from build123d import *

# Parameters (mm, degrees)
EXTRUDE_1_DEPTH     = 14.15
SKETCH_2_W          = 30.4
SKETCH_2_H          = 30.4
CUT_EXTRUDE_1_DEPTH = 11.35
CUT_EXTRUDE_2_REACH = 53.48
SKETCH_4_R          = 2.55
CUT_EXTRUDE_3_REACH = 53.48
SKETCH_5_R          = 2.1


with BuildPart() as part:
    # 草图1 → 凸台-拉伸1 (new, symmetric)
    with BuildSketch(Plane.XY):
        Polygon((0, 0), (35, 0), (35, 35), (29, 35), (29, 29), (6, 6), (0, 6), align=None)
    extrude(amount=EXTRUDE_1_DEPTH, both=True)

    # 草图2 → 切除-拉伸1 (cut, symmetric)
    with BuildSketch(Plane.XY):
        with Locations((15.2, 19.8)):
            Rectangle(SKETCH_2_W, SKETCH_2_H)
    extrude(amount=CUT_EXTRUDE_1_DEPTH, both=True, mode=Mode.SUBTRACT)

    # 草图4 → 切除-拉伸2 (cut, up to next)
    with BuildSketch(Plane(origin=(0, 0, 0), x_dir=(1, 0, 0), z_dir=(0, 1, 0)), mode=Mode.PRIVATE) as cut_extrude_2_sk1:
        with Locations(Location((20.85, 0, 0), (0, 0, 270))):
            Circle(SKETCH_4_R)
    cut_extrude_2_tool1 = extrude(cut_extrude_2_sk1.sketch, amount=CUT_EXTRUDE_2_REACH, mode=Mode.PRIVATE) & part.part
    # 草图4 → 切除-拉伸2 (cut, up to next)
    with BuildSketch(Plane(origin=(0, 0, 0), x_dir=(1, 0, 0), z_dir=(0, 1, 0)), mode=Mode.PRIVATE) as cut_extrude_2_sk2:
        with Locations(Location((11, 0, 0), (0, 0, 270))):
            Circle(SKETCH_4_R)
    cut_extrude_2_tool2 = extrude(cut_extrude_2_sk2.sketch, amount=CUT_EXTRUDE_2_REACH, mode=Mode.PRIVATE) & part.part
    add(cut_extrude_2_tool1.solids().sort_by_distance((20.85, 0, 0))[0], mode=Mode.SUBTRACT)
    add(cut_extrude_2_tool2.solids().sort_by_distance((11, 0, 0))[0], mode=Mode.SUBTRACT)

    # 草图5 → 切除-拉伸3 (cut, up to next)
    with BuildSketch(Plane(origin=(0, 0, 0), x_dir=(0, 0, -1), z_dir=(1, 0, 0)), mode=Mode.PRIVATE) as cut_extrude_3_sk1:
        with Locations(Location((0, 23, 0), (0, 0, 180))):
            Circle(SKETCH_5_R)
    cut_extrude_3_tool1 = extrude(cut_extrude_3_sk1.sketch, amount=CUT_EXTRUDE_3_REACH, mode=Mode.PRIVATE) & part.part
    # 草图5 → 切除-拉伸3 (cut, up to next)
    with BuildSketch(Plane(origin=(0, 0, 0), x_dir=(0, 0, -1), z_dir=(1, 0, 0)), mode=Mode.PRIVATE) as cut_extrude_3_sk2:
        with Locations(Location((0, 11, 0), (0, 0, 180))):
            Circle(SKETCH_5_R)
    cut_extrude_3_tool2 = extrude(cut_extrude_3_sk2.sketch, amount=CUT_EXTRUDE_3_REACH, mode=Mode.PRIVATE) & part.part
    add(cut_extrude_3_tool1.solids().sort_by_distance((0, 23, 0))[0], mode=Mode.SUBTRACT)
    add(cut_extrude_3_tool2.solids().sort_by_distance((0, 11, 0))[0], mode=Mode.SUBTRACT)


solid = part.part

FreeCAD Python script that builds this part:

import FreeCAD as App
import Part
import Sketcher
Q = App.Units.Quantity

doc = App.newDocument("Part")
params = doc.addObject("Spreadsheet::Sheet", "Params")
for row, (alias, value) in enumerate([
    ("sketch1_width", "35 mm"),
    ("sketch1_width2", "6 mm"),
    ("pad1_length", "28.3 mm"),
    ("sketch2_width", "30.4 mm"),
    ("pocket1_length", "22.7 mm"),
    ("sketch3_diameter", "5.1 mm"),
    ("sketch4_diameter", "5.1 mm"),
    ("sketch5_diameter", "4.2 mm"),
    ("pocket4_length", "35 mm"),
    ("sketch6_diameter", "4.2 mm"),
    ("pocket5_length", "35 mm"),
], start=1):
    params.set(f"A{row}", alias)
    params.set(f"B{row}", "=" + value)
    params.setAlias(f"B{row}", alias)

body = doc.addObject("PartDesign::Body", "Body")

# Sketch on XY plane
sketch1 = body.newObject("Sketcher::SketchObject", "Sketch")
sketch1.AttachmentSupport = (doc.getObject("XY_Plane"), [""])
sketch1.MapMode = "FlatFace"
sketch1.addGeometry(Part.LineSegment(App.Vector(0, 0, 0), App.Vector(35, 0, 0)), False)
sketch1.addGeometry(Part.LineSegment(App.Vector(35, 0, 0), App.Vector(35, 35, 0)), False)
sketch1.addGeometry(Part.LineSegment(App.Vector(35, 35, 0), App.Vector(29, 35, 0)), False)
sketch1.addGeometry(Part.LineSegment(App.Vector(29, 35, 0), App.Vector(29, 29, 0)), False)
sketch1.addGeometry(Part.LineSegment(App.Vector(29, 29, 0), App.Vector(6, 6, 0)), False)
sketch1.addGeometry(Part.LineSegment(App.Vector(6, 6, 0), App.Vector(0, 6, 0)), False)
sketch1.addGeometry(Part.LineSegment(App.Vector(0, 6, 0), App.Vector(0, 0, 0)), False)
sketch1.addConstraint(Sketcher.Constraint("Coincident", 0, 2, 1, 1))
sketch1.addConstraint(Sketcher.Constraint("Coincident", 1, 2, 2, 1))
sketch1.addConstraint(Sketcher.Constraint("Coincident", 2, 2, 3, 1))
sketch1.addConstraint(Sketcher.Constraint("Coincident", 3, 2, 4, 1))
sketch1.addConstraint(Sketcher.Constraint("Coincident", 4, 2, 5, 1))
sketch1.addConstraint(Sketcher.Constraint("Coincident", 5, 2, 6, 1))
sketch1.addConstraint(Sketcher.Constraint("Coincident", 6, 2, 0, 1))
sketch1.addConstraint(Sketcher.Constraint("Horizontal", 0))
sketch1.addConstraint(Sketcher.Constraint("Vertical", 1))
sketch1.addConstraint(Sketcher.Constraint("Horizontal", 2))
sketch1.addConstraint(Sketcher.Constraint("Vertical", 3))
sketch1.addConstraint(Sketcher.Constraint("Horizontal", 5))
sketch1.addConstraint(Sketcher.Constraint("Vertical", 6))
sketch1.addConstraint(Sketcher.Constraint("Coincident", 6, 2, -1, 1))
sketch1.addConstraint(Sketcher.Constraint("Equal", 2, 5))
sketch1.addConstraint(Sketcher.Constraint("Equal", 0, 1))
sketch1.addConstraint(Sketcher.Constraint("Equal", 5, 3))
sketch1.addConstraint(Sketcher.Constraint("Equal", 3, 6))
sketch1.addConstraint(Sketcher.Constraint("DistanceX", 0, 1, 0, 2, Q("35 mm")))
sketch1.addConstraint(Sketcher.Constraint("DistanceX", 2, 2, 2, 1, Q("6 mm")))
sketch1.setExpression("Constraints[18]", "Params.sketch1_width")
sketch1.setExpression("Constraints[19]", "Params.sketch1_width2")
pad1 = body.newObject("PartDesign::Pad", "Pad")
pad1.Profile = sketch1
pad1.setExpression("Length", "Params.pad1_length")
pad1.Midplane = True

# Sketch on XY plane
sketch2 = body.newObject("Sketcher::SketchObject", "Sketch001")
sketch2.AttachmentSupport = (doc.getObject("XY_Plane"), [""])
sketch2.MapMode = "FlatFace"
sketch2.addGeometry(Part.LineSegment(App.Vector(0, 35, 0), App.Vector(0, 4.6, 0)), False)
sketch2.addGeometry(Part.LineSegment(App.Vector(0, 4.6, 0), App.Vector(30.4, 4.6, 0)), False)
sketch2.addGeometry(Part.LineSegment(App.Vector(30.4, 4.6, 0), App.Vector(30.4, 35, 0)), False)
sketch2.addGeometry(Part.LineSegment(App.Vector(30.4, 35, 0), App.Vector(0, 35, 0)), False)
sketch2.addConstraint(Sketcher.Constraint("Coincident", 0, 2, 1, 1))
sketch2.addConstraint(Sketcher.Constraint("Coincident", 1, 2, 2, 1))
sketch2.addConstraint(Sketcher.Constraint("Coincident", 2, 2, 3, 1))
sketch2.addConstraint(Sketcher.Constraint("Coincident", 3, 2, 0, 1))
sketch2.addConstraint(Sketcher.Constraint("Vertical", 0))
sketch2.addConstraint(Sketcher.Constraint("Horizontal", 1))
sketch2.addConstraint(Sketcher.Constraint("Vertical", 2))
sketch2.addConstraint(Sketcher.Constraint("Horizontal", 3))
sketch2.addConstraint(Sketcher.Constraint("PointOnObject", 0, 2, -2))
sketch2.addConstraint(Sketcher.Constraint("Equal", 3, 0))
sketch2.addConstraint(Sketcher.Constraint("DistanceX", 1, 1, 1, 2, Q("30.4 mm")))
sketch2.addConstraint(Sketcher.Constraint("DistanceY", -1, 1, 2, 2, Q("35 mm")))
sketch2.setExpression("Constraints[10]", "Params.sketch2_width")
pocket1 = body.newObject("PartDesign::Pocket", "Pocket")
pocket1.Profile = sketch2
pocket1.setExpression("Length", "Params.pocket1_length")
pocket1.Midplane = True

# Sketch on XZ plane
sketch3 = body.newObject("Sketcher::SketchObject", "Sketch002")
sketch3.AttachmentSupport = (doc.getObject("XZ_Plane"), [""])
sketch3.MapMode = "FlatFace"
sketch3.addGeometry(Part.Circle(App.Vector(20.85, 0, 0), App.Vector(0, 0, 1), 2.55), False)
sketch3.addConstraint(Sketcher.Constraint("PointOnObject", 0, 3, -1))
sketch3.addConstraint(Sketcher.Constraint("Diameter", 0, Q("5.1 mm")))
sketch3.addConstraint(Sketcher.Constraint("DistanceX", -1, 1, 0, 3, Q("20.85 mm")))
sketch3.setExpression("Constraints[1]", "Params.sketch3_diameter")
pocket2 = body.newObject("PartDesign::Pocket", "Pocket001")
pocket2.Profile = sketch3
pocket2.Type = "UpToFirst"

# Sketch on XZ plane
sketch4 = body.newObject("Sketcher::SketchObject", "Sketch003")
sketch4.AttachmentSupport = (doc.getObject("XZ_Plane"), [""])
sketch4.MapMode = "FlatFace"
sketch4.addGeometry(Part.Circle(App.Vector(11, 0, 0), App.Vector(0, 0, 1), 2.55), False)
sketch4.addConstraint(Sketcher.Constraint("PointOnObject", 0, 3, -1))
sketch4.addConstraint(Sketcher.Constraint("Diameter", 0, Q("5.1 mm")))
sketch4.addConstraint(Sketcher.Constraint("DistanceX", -1, 1, 0, 3, Q("11 mm")))
sketch4.setExpression("Constraints[1]", "Params.sketch4_diameter")
pocket3 = body.newObject("PartDesign::Pocket", "Pocket002")
pocket3.Profile = sketch4
pocket3.Type = "UpToFirst"

# Sketch on YZ plane
sketch5 = body.newObject("Sketcher::SketchObject", "Sketch004")
sketch5.AttachmentSupport = (doc.getObject("YZ_Plane"), [""])
sketch5.MapMode = "FlatFace"
sketch5.addGeometry(Part.Circle(App.Vector(23, 0, 0), App.Vector(0, 0, 1), 2.1), False)
sketch5.addConstraint(Sketcher.Constraint("PointOnObject", 0, 3, -1))
sketch5.addConstraint(Sketcher.Constraint("Diameter", 0, Q("4.2 mm")))
sketch5.addConstraint(Sketcher.Constraint("DistanceX", -1, 1, 0, 3, Q("23 mm")))
sketch5.setExpression("Constraints[1]", "Params.sketch5_diameter")
pocket4 = body.newObject("PartDesign::Pocket", "Pocket003")
pocket4.Profile = sketch5
pocket4.setExpression("Length", "Params.pocket4_length")
pocket4.Reversed = True

# Sketch on YZ plane
sketch6 = body.newObject("Sketcher::SketchObject", "Sketch005")
sketch6.AttachmentSupport = (doc.getObject("YZ_Plane"), [""])
sketch6.MapMode = "FlatFace"
sketch6.addGeometry(Part.Circle(App.Vector(11, 0, 0), App.Vector(0, 0, 1), 2.1), False)
sketch6.addConstraint(Sketcher.Constraint("PointOnObject", 0, 3, -1))
sketch6.addConstraint(Sketcher.Constraint("Diameter", 0, Q("4.2 mm")))
sketch6.addConstraint(Sketcher.Constraint("DistanceX", -1, 1, 0, 3, Q("11 mm")))
sketch6.setExpression("Constraints[1]", "Params.sketch6_diameter")
pocket5 = body.newObject("PartDesign::Pocket", "Pocket004")
pocket5.Profile = sketch6
pocket5.setExpression("Length", "Params.pocket5_length")
pocket5.Reversed = True

doc.recompute()
